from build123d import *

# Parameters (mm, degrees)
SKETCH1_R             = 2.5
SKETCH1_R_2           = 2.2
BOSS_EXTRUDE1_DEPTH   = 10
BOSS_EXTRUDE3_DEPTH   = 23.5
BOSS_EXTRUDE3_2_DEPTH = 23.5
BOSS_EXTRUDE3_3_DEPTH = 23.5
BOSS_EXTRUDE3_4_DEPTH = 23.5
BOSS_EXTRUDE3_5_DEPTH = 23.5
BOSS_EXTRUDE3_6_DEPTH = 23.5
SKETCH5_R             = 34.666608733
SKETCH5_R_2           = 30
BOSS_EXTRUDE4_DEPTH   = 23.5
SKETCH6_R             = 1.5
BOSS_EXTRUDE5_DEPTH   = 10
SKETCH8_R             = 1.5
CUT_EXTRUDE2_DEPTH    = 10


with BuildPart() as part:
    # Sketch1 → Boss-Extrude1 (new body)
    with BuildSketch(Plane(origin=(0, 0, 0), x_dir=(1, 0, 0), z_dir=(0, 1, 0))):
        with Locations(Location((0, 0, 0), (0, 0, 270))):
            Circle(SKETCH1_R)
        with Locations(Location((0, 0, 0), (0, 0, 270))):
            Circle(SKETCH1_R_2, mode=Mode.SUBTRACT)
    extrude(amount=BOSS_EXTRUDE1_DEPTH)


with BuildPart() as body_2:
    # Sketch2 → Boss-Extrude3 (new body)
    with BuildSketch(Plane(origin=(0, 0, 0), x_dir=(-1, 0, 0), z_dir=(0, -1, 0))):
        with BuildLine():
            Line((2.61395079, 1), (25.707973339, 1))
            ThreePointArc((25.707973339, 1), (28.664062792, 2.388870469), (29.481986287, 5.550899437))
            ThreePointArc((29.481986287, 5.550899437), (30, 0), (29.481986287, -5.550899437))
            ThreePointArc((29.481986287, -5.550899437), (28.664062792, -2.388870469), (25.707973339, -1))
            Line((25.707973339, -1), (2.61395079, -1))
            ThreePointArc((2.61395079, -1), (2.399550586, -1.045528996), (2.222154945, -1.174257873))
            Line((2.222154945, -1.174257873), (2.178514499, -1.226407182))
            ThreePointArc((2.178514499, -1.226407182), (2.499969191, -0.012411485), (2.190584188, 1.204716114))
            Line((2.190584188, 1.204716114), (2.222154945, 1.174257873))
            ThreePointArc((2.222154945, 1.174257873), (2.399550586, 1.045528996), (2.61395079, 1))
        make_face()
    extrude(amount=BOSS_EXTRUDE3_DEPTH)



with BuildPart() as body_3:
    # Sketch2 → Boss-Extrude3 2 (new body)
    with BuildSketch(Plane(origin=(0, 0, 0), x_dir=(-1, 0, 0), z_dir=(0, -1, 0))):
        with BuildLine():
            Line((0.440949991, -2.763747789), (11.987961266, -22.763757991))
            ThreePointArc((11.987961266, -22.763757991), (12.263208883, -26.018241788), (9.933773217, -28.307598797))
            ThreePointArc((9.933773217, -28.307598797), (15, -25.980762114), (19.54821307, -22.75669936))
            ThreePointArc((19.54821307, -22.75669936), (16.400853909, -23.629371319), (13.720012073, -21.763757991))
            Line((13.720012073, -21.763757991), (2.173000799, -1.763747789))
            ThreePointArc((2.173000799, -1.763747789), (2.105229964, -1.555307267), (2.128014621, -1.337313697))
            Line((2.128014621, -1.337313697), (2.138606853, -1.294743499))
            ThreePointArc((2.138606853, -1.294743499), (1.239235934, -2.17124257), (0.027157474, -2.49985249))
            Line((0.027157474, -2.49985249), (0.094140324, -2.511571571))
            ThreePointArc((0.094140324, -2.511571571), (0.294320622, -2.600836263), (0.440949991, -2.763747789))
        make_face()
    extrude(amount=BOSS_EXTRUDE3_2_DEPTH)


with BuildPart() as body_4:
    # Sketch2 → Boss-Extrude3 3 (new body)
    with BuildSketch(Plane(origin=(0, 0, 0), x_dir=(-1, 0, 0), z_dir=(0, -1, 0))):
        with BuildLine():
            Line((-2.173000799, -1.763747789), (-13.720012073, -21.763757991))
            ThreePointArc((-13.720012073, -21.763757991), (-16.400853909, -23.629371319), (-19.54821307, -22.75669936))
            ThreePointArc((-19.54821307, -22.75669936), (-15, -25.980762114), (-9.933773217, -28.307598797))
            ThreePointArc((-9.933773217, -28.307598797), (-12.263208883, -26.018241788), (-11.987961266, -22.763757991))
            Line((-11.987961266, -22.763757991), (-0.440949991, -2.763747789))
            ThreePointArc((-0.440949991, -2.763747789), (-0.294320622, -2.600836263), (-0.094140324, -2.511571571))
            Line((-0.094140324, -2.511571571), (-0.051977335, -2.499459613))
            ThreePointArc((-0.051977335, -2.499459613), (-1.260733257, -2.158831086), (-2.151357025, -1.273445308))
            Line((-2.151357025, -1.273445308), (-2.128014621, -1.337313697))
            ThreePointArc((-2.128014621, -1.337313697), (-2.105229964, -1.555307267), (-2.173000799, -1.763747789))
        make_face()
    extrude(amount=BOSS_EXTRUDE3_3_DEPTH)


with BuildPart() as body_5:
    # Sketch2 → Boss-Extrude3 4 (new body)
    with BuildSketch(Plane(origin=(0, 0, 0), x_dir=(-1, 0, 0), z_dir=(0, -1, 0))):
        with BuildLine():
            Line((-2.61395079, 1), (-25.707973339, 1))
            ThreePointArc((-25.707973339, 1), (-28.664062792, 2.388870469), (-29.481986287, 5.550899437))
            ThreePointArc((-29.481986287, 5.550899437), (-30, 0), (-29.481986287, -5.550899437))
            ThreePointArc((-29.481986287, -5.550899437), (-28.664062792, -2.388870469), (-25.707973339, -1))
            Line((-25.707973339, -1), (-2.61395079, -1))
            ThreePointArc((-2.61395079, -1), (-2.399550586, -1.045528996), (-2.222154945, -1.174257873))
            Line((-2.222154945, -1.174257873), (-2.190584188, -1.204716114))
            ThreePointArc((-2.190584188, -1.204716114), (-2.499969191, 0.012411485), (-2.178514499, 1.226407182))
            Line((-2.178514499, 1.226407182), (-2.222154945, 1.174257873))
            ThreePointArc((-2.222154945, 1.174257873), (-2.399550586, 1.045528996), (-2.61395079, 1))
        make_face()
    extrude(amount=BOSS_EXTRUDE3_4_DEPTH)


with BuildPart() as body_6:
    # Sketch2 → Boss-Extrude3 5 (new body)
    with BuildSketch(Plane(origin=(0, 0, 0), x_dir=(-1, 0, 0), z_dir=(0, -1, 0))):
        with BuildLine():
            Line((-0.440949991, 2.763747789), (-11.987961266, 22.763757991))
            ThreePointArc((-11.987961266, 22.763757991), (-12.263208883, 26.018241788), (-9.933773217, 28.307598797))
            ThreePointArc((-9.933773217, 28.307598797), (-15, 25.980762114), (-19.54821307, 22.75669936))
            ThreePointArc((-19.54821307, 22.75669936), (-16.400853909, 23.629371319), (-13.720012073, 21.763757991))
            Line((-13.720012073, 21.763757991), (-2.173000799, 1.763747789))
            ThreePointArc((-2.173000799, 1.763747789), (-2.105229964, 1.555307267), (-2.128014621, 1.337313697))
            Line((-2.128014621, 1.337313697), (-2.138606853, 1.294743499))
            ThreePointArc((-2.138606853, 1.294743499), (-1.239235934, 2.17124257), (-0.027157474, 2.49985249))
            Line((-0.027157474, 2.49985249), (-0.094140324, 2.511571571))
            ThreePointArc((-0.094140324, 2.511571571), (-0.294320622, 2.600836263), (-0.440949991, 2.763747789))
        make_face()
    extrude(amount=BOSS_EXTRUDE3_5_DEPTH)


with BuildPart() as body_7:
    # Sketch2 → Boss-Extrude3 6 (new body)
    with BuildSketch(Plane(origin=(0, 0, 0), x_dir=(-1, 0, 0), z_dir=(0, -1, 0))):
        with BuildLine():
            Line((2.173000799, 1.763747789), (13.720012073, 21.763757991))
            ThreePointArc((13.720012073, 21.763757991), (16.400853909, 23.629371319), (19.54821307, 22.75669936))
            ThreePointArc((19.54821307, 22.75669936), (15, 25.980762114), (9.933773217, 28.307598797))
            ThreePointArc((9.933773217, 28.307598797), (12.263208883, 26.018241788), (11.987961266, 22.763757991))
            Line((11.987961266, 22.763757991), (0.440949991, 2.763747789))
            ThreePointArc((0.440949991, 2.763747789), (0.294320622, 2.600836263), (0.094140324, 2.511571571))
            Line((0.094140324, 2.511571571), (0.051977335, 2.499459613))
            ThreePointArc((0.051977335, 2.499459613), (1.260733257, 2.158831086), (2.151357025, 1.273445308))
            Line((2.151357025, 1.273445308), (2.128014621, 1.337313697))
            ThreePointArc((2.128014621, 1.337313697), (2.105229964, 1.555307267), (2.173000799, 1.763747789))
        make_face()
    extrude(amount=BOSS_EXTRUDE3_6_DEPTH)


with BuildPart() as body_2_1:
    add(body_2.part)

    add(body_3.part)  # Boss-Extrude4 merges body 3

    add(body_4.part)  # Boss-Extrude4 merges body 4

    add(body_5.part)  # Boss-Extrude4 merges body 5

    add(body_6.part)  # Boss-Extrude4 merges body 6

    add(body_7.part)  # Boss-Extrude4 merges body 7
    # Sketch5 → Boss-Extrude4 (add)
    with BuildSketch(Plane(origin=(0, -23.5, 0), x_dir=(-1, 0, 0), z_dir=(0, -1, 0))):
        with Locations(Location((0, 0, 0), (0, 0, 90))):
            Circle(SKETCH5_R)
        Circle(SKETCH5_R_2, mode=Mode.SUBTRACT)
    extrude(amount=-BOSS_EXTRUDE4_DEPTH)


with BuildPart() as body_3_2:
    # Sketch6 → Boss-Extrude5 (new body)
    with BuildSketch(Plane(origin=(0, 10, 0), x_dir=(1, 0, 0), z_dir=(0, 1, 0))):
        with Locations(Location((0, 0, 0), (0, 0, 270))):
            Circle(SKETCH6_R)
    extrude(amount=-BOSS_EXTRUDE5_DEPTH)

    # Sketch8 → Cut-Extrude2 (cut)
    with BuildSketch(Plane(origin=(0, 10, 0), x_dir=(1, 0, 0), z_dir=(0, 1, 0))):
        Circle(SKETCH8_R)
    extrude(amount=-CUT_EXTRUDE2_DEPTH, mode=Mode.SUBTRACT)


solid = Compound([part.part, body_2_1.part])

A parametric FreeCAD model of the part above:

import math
import FreeCAD as App
import Part
import Sketcher
Q = App.Units.Quantity

doc = App.newDocument("Part")
params = doc.addObject("Spreadsheet::Sheet", "Params")
for row, (alias, value) in enumerate([
    ("sketch1_diameter", "5 mm"),
    ("sketch1_diameter2", "4.4 mm"),
    ("pad1_length", "10 mm"),
    ("sketch2_radius", "30 mm"),
    ("sketch2_radius2", "2.5 mm"),
    ("pad2_length", "23.5 mm"),
    ("sketch3_radius", "30 mm"),
    ("sketch3_radius2", "2.5 mm"),
    ("pad3_length", "23.5 mm"),
    ("sketch4_radius", "30 mm"),
    ("sketch4_radius2", "2.5 mm"),
    ("pad4_length", "23.5 mm"),
    ("sketch5_radius", "30 mm"),
    ("sketch5_radius2", "2.5 mm"),
    ("pad5_length", "23.5 mm"),
    ("sketch6_radius", "30 mm"),
    ("sketch6_radius2", "2.5 mm"),
    ("pad6_length", "23.5 mm"),
    ("sketch7_radius", "30 mm"),
    ("sketch7_radius2", "2.5 mm"),
    ("pad7_length", "23.5 mm"),
    ("sketch8_diameter", "60 mm"),
    ("pad8_length", "23.5 mm"),
    ("sketch9_diameter", "3 mm"),
    ("pad9_length", "10 mm"),
    ("sketch10_diameter", "3 mm"),
    ("pocket1_length", "10 mm"),
], start=1):
    params.set(f"A{row}", alias)
    params.set(f"B{row}", "=" + value)
    params.setAlias(f"B{row}", alias)

body = doc.addObject("PartDesign::Body", "Body")

sketch1 = body.newObject("Sketcher::SketchObject", "Sketch")
sketch1.AttachmentSupport = (doc.getObject("XZ_Plane"), [""])
sketch1.MapMode = "FlatFace"
sketch1.addGeometry(Part.Circle(App.Vector(0, 0, 0), App.Vector(0, 0, 1), 2.5), False)
sketch1.addGeometry(Part.Circle(App.Vector(0, 0, 0), App.Vector(0, 0, 1), 2.2), False)
sketch1.addConstraint(Sketcher.Constraint("Coincident", 0, 3, -1, 1))
sketch1.addConstraint(Sketcher.Constraint("Coincident", 1, 3, -1, 1))
sketch1.addConstraint(Sketcher.Constraint("Diameter", 0, Q("5 mm")))
sketch1.addConstraint(Sketcher.Constraint("Diameter", 1, Q("4.4 mm")))
sketch1.setExpression("Constraints[2]", "Params.sketch1_diameter")
sketch1.setExpression("Constraints[3]", "Params.sketch1_diameter2")
pad1 = body.newObject("PartDesign::Pad", "Pad")
pad1.Profile = sketch1
pad1.setExpression("Length", "Params.pad1_length")
pad1.Reversed = True
body2 = doc.addObject("PartDesign::Body", "Body001")

sketch2 = body2.newObject("Sketcher::SketchObject", "Sketch001")
sketch2.AttachmentSupport = (doc.getObject("XZ_Plane001"), [""])
sketch2.MapMode = "FlatFace"
sketch2.addGeometry(Part.LineSegment(App.Vector(-25.707973, -1, 0), App.Vector(-2.613951, -1, 0)), False)
sketch2.addGeometry(Part.ArcOfCircle(Part.Circle(App.Vector(-2.613951, -1.52758, 0), App.Vector(0, 0, 1), 0.52758), math.radians(42.044158), math.radians(90)), False)
sketch2.addGeometry(Part.LineSegment(App.Vector(-2.222155, -1.174258, 0), App.Vector(-2.190584, -1.204716, 0)), False)
sketch2.addGeometry(Part.ArcOfCircle(Part.Circle(App.Vector(0, 0, 0), App.Vector(0, 0, 1), 2.5), math.radians(150.622416), math.radians(208.808681)), False)
sketch2.addGeometry(Part.LineSegment(App.Vector(-2.178514, 1.226407, 0), App.Vector(-2.222155, 1.174258, 0)), False)
sketch2.addGeometry(Part.ArcOfCircle(Part.Circle(App.Vector(-2.613951, 1.52758, 0), App.Vector(0, 0, 1), 0.52758), math.radians(-90), math.radians(-42.044158)), False)
sketch2.addGeometry(Part.LineSegment(App.Vector(-2.613951, 1, 0), App.Vector(-25.707973, 1, 0)), False)
sketch2.addGeometry(Part.ArcOfCircle(Part.Circle(App.Vector(-25.707973, 4.840324, 0), App.Vector(0, 0, 1), 3.840324), math.radians(169.33712), math.radians(270)), False)
sketch2.addGeometry(Part.ArcOfCircle(Part.Circle(App.Vector(0, 0, 0), App.Vector(0, 0, 1), 30), math.radians(169.33712), math.radians(190.66288)), False)
sketch2.addGeometry(Part.ArcOfCircle(Part.Circle(App.Vector(-25.707973, -4.840324, 0), App.Vector(0, 0, 1), 3.840324), math.radians(90), math.radians(190.66288)), False)
sketch2.addConstraint(Sketcher.Constraint("Tangent", 0, 2, 1, 2))
sketch2.addConstraint(Sketcher.Constraint("Coincident", 1, 1, 2, 1))
sketch2.addConstraint(Sketcher.Constraint("Coincident", 2, 2, 3, 2))
sketch2.addConstraint(Sketcher.Constraint("Coincident", 3, 1, 4, 1))
sketch2.addConstraint(Sketcher.Constraint("Coincident", 4, 2, 5, 2))
sketch2.addConstraint(Sketcher.Constraint("Tangent", 5, 1, 6, 1))
sketch2.addConstraint(Sketcher.Constraint("Tangent", 6, 2, 7, 2))
sketch2.addConstraint(Sketcher.Constraint("Tangent", 7, 1, 8, 1))
sketch2.addConstraint(Sketcher.Constraint("Tangent", 8, 2, 9, 2))
sketch2.addConstraint(Sketcher.Constraint("Tangent", 9, 1, 0, 1))
sketch2.addConstraint(Sketcher.Constraint("Horizontal", 0))
sketch2.addConstraint(Sketcher.Constraint("Horizontal", 6))
sketch2.addConstraint(Sketcher.Constraint("Coincident", 3, 3, -1, 1))
sketch2.addConstraint(Sketcher.Constraint("Coincident", 8, 3, -1, 1))
sketch2.addConstraint(Sketcher.Constraint("Equal", 1, 5))
sketch2.addConstraint(Sketcher.Constraint("Equal", 7, 9))
sketch2.addConstraint(Sketcher.Constraint("Symmetric", 1, 3, 5, 3, -1))
sketch2.addConstraint(Sketcher.Constraint("Vertical", 1, 1, 4, 2))
sketch2.addConstraint(Sketcher.Constraint("Radius", 8, Q("30 mm")))
sketch2.addConstraint(Sketcher.Constraint("Radius", 3, Q("2.5 mm")))
sketch2.addConstraint(Sketcher.Constraint("DistanceY", 0, 2, -1, 1, Q("1 mm")))
sketch2.addConstraint(Sketcher.Constraint("Radius", 1, Q("0.52758 mm")))
sketch2.addConstraint(Sketcher.Constraint("Distance", 4, Q("0.068 mm")))
sketch2.addConstraint(Sketcher.Constraint("Radius", 7, Q("3.840324 mm")))
sketch2.addConstraint(Sketcher.Constraint("Distance", 2, Q("0.043868 mm")))
sketch2.addConstraint(Sketcher.Constraint("DistanceX", 0, 1, 0, 2, Q("23.094023 mm")))
sketch2.addConstraint(Sketcher.Constraint("DistanceY", 1, 3, 1, 1, Q("0.353322 mm")))
sketch2.setExpression("Constraints[18]", "Params.sketch2_radius")
sketch2.setExpression("Constraints[19]", "Params.sketch2_radius2")
pad2 = body2.newObject("PartDesign::Pad", "Pad001")
pad2.Profile = sketch2
pad2.setExpression("Length", "Params.pad2_length")
body3 = doc.addObject("PartDesign::Body", "Body002")

sketch3 = body3.newObject("Sketcher::SketchObject", "Sketch002")
sketch3.AttachmentSupport = (doc.getObject("XZ_Plane002"), [""])
sketch3.MapMode = "FlatFace"
sketch3.addGeometry(Part.LineSegment(App.Vector(-0.44095, 2.763748, 0), App.Vector(-11.987961, 22.763758, 0)), False)
sketch3.addGeometry(Part.ArcOfCircle(Part.Circle(App.Vector(-8.662143, 24.68392, 0), App.Vector(0, 0, 1), 3.840324), math.radians(109.33712), math.radians(210)), False)
sketch3.addGeometry(Part.ArcOfCircle(Part.Circle(App.Vector(0, 0, 0), App.Vector(0, 0, 1), 30), math.radians(109.33712), math.radians(130.66288)), False)
sketch3.addGeometry(Part.ArcOfCircle(Part.Circle(App.Vector(-17.04583, 19.843596, 0), App.Vector(0, 0, 1), 3.840324), math.radians(30), math.radians(130.66288)), False)
sketch3.addGeometry(Part.LineSegment(App.Vector(-13.720012, 21.763758, 0), App.Vector(-2.173001, 1.763748, 0)), False)
sketch3.addGeometry(Part.ArcOfCircle(Part.Circle(App.Vector(-2.629898, 1.499958, 0), App.Vector(0, 0, 1), 0.52758), math.radians(-17.955842), math.radians(30)), False)
sketch3.addGeometry(Part.LineSegment(App.Vector(-2.128015, 1.337314, 0), App.Vector(-2.138607, 1.294743, 0)), False)
sketch3.addGeometry(Part.ArcOfCircle(Part.Circle(App.Vector(0, 0, 0), App.Vector(0, 0, 1), 2.5), math.radians(90.622416), math.radians(148.808681)), False)
sketch3.addGeometry(Part.LineSegment(App.Vector(-0.027157, 2.499852, 0), App.Vector(-0.09414, 2.511572, 0)), False)
sketch3.addGeometry(Part.ArcOfCircle(Part.Circle(App.Vector(0.015947, 3.027538, 0), App.Vector(0, 0, 1), 0.52758), math.radians(-150), math.radians(-102.044157)), False)
sketch3.addConstraint(Sketcher.Constraint("Tangent", 0, 2, 1, 2))
sketch3.addConstraint(Sketcher.Constraint("Tangent", 1, 1, 2, 1))
sketch3.addConstraint(Sketcher.Constraint("Tangent", 2, 2, 3, 2))
sketch3.addConstraint(Sketcher.Constraint("Tangent", 3, 1, 4, 1))
sketch3.addConstraint(Sketcher.Constraint("Tangent", 4, 2, 5, 2))
sketch3.addConstraint(Sketcher.Constraint("Coincident", 5, 1, 6, 1))
sketch3.addConstraint(Sketcher.Constraint("Coincident", 6, 2, 7, 2))
sketch3.addConstraint(Sketcher.Constraint("Coincident", 7, 1, 8, 1))
sketch3.addConstraint(Sketcher.Constraint("Coincident", 8, 2, 9, 2))
sketch3.addConstraint(Sketcher.Constraint("Tangent", 9, 1, 0, 1))
sketch3.addConstraint(Sketcher.Constraint("Coincident", 2, 3, -1, 1))
sketch3.addConstraint(Sketcher.Constraint("Coincident", 7, 3, -1, 1))
sketch3.addConstraint(Sketcher.Constraint("Equal", 1, 3))
sketch3.addConstraint(Sketcher.Constraint("Equal", 5, 9))
sketch3.addConstraint(Sketcher.Constraint("Parallel", 0, 4))
sketch3.addConstraint(Sketcher.Constraint("Equal", 0, 4))
sketch3.addConstraint(Sketcher.Constraint("Radius", 2, Q("30 mm")))
sketch3.addConstraint(Sketcher.Constraint("Radius", 7, Q("2.5 mm")))
sketch3.addConstraint(Sketcher.Constraint("Angle", 0, Q("120 deg")))
sketch3.addConstraint(Sketcher.Constraint("DistanceY", 3, 1, 0, 2, Q("1 mm")))
sketch3.addConstraint(Sketcher.Constraint("Radius", 5, Q("0.52758 mm")))
sketch3.addConstraint(Sketcher.Constraint("Distance", 8, Q("0.068 mm")))
sketch3.addConstraint(Sketcher.Constraint("DistanceX", 4, 2, -1, 1, Q("2.173001 mm")))
sketch3.addConstraint(Sketcher.Constraint("Radius", 1, Q("3.840324 mm")))
sketch3.addConstraint(Sketcher.Constraint("DistanceY", -1, 1, 1, 1, Q("28.307599 mm")))
sketch3.addConstraint(Sketcher.Constraint("Distance", 6, Q("0.043868 mm")))
sketch3.addConstraint(Sketcher.Constraint("DistanceX", 8, 2, -1, 1, Q("0.09414 mm")))
sketch3.addConstraint(Sketcher.Constraint("DistanceX", 5, 1, 9, 3, Q("2.143962 mm")))
sketch3.setExpression("Constraints[16]", "Params.sketch3_radius")
sketch3.setExpression("Constraints[17]", "Params.sketch3_radius2")
pad3 = body3.newObject("PartDesign::Pad", "Pad002")
pad3.Profile = sketch3
pad3.setExpression("Length", "Params.pad3_length")
body4 = doc.addObject("PartDesign::Body", "Body003")

sketch4 = body4.newObject("Sketcher::SketchObject", "Sketch003")
sketch4.AttachmentSupport = (doc.getObject("XZ_Plane003"), [""])
sketch4.MapMode = "FlatFace"
sketch4.addGeometry(Part.LineSegment(App.Vector(2.173001, 1.763748, 0), App.Vector(13.720012, 21.763758, 0)), False)
sketch4.addGeometry(Part.ArcOfCircle(Part.Circle(App.Vector(17.04583, 19.843596, 0), App.Vector(0, 0, 1), 3.840324), math.radians(49.33712), math.radians(150)), False)
sketch4.addGeometry(Part.ArcOfCircle(Part.Circle(App.Vector(0, 0, 0), App.Vector(0, 0, 1), 30), math.radians(49.33712), math.radians(70.66288)), False)
sketch4.addGeometry(Part.ArcOfCircle(Part.Circle(App.Vector(8.662143, 24.68392, 0), App.Vector(0, 0, 1), 3.840324), math.radians(-30), math.radians(70.66288)), False)
sketch4.addGeometry(Part.LineSegment(App.Vector(11.987961, 22.763758, 0), App.Vector(0.44095, 2.763748, 0)), False)
sketch4.addGeometry(Part.ArcOfCircle(Part.Circle(App.Vector(-0.015947, 3.027538, 0), App.Vector(0, 0, 1), 0.52758), math.radians(-77.955843), math.radians(-30)), False)
sketch4.addGeometry(Part.LineSegment(App.Vector(0.09414, 2.511572, 0), App.Vector(0.051977, 2.49946, 0)), False)
sketch4.addGeometry(Part.ArcOfCircle(Part.Circle(App.Vector(0, 0, 0), App.Vector(0, 0, 1), 2.5), math.radians(30.622416), math.radians(88.808681)), False)
sketch4.addGeometry(Part.LineSegment(App.Vector(2.151357, 1.273445, 0), App.Vector(2.128015, 1.337314, 0)), False)
sketch4.addGeometry(Part.ArcOfCircle(Part.Circle(App.Vector(2.629898, 1.499958, 0), App.Vector(0, 0, 1), 0.52758), math.radians(150), math.radians(197.955842)), False)
sketch4.addConstraint(Sketcher.Constraint("Tangent", 0, 2, 1, 2))
sketch4.addConstraint(Sketcher.Constraint("Tangent", 1, 1, 2, 1))
sketch4.addConstraint(Sketcher.Constraint("Tangent", 2, 2, 3, 2))
sketch4.addConstraint(Sketcher.Constraint("Tangent", 3, 1, 4, 1))
sketch4.addConstraint(Sketcher.Constraint("Tangent", 4, 2, 5, 2))
sketch4.addConstraint(Sketcher.Constraint("Coincident", 5, 1, 6, 1))
sketch4.addConstraint(Sketcher.Constraint("Coincident", 6, 2, 7, 2))
sketch4.addConstraint(Sketcher.Constraint("Coincident", 7, 1, 8, 1))
sketch4.addConstraint(Sketcher.Constraint("Coincident", 8, 2, 9, 2))
sketch4.addConstraint(Sketcher.Constraint("Tangent", 9, 1, 0, 1))
sketch4.addConstraint(Sketcher.Constraint("Coincident", 2, 3, -1, 1))
sketch4.addConstraint(Sketcher.Constraint("Coincident", 7, 3, -1, 1))
sketch4.addConstraint(Sketcher.Constraint("Equal", 1, 3))
sketch4.addConstraint(Sketcher.Constraint("Equal", 5, 9))
sketch4.addConstraint(Sketcher.Constraint("Parallel", 0, 4))
sketch4.addConstraint(Sketcher.Constraint("Equal", 0, 4))
sketch4.addConstraint(Sketcher.Constraint("Radius", 2, Q("30 mm")))
sketch4.addConstraint(Sketcher.Constraint("Radius", 7, Q("2.5 mm")))
sketch4.addConstraint(Sketcher.Constraint("Angle", 0, Q("60 deg")))
sketch4.addConstraint(Sketcher.Constraint("DistanceY", 0, 2, 3, 1, Q("1 mm")))
sketch4.addConstraint(Sketcher.Constraint("Radius", 5, Q("0.52758 mm")))
sketch4.addConstraint(Sketcher.Constraint("Distance", 8, Q("0.068 mm")))
sketch4.addConstraint(Sketcher.Constraint("DistanceX", -1, 1, 9, 1, Q("2.173001 mm")))
sketch4.addConstraint(Sketcher.Constraint("Radius", 1, Q("3.840324 mm")))
sketch4.addConstraint(Sketcher.Constraint("DistanceY", -1, 1, 1, 1, Q("22.756699 mm")))
sketch4.addConstraint(Sketcher.Constraint("Distance", 6, Q("0.043868 mm")))
sketch4.addConstraint(Sketcher.Constraint("DistanceX", -1, 1, 5, 1, Q("0.09414 mm")))
sketch4.addConstraint(Sketcher.Constraint("DistanceX", 7, 1, 9, 3, Q("0.478541 mm")))
sketch4.setExpression("Constraints[16]", "Params.sketch4_radius")
sketch4.setExpression("Constraints[17]", "Params.sketch4_radius2")
pad4 = body4.newObject("PartDesign::Pad", "Pad003")
pad4.Profile = sketch4
pad4.setExpression("Length", "Params.pad4_length")
body5 = doc.addObject("PartDesign::Body", "Body004")

sketch5 = body5.newObject("Sketcher::SketchObject", "Sketch004")
sketch5.AttachmentSupport = (doc.getObject("XZ_Plane004"), [""])
sketch5.MapMode = "FlatFace"
sketch5.addGeometry(Part.LineSegment(App.Vector(2.613951, -1, 0), App.Vector(25.707973, -1, 0)), False)
sketch5.addGeometry(Part.ArcOfCircle(Part.Circle(App.Vector(25.707973, -4.840324, 0), App.Vector(0, 0, 1), 3.840324), math.radians(-10.66288), math.radians(90)), False)
sketch5.addGeometry(Part.ArcOfCircle(Part.Circle(App.Vector(0, 0, 0), App.Vector(0, 0, 1), 30), math.radians(-10.66288), math.radians(10.66288)), False)
sketch5.addGeometry(Part.ArcOfCircle(Part.Circle(App.Vector(25.707973, 4.840324, 0), App.Vector(0, 0, 1), 3.840324), math.radians(-90), math.radians(10.66288)), False)
sketch5.addGeometry(Part.LineSegment(App.Vector(25.707973, 1, 0), App.Vector(2.613951, 1, 0)), False)
sketch5.addGeometry(Part.ArcOfCircle(Part.Circle(App.Vector(2.613951, 1.52758, 0), App.Vector(0, 0, 1), 0.52758), math.radians(-137.955842), math.radians(-90)), False)
sketch5.addGeometry(Part.LineSegment(App.Vector(2.222155, 1.174258, 0), App.Vector(2.190584, 1.204716, 0)), False)
sketch5.addGeometry(Part.ArcOfCircle(Part.Circle(App.Vector(0, 0, 0), App.Vector(0, 0, 1), 2.5), math.radians(-29.377584), math.radians(28.808681)), False)
sketch5.addGeometry(Part.LineSegment(App.Vector(2.178514, -1.226407, 0), App.Vector(2.222155, -1.174258, 0)), False)
sketch5.addGeometry(Part.ArcOfCircle(Part.Circle(App.Vector(2.613951, -1.52758, 0), App.Vector(0, 0, 1), 0.52758), math.radians(90), math.radians(137.955842)), False)
sketch5.addConstraint(Sketcher.Constraint("Tangent", 0, 2, 1, 2))
sketch5.addConstraint(Sketcher.Constraint("Tangent", 1, 1, 2, 1))
sketch5.addConstraint(Sketcher.Constraint("Tangent", 2, 2, 3, 2))
sketch5.addConstraint(Sketcher.Constraint("Tangent", 3, 1, 4, 1))
sketch5.addConstraint(Sketcher.Constraint("Tangent", 4, 2, 5, 2))
sketch5.addConstraint(Sketcher.Constraint("Coincident", 5, 1, 6, 1))
sketch5.addConstraint(Sketcher.Constraint("Coincident", 6, 2, 7, 2))
sketch5.addConstraint(Sketcher.Constraint("Coincident", 7, 1, 8, 1))
sketch5.addConstraint(Sketcher.Constraint("Coincident", 8, 2, 9, 2))
sketch5.addConstraint(Sketcher.Constraint("Tangent", 9, 1, 0, 1))
sketch5.addConstraint(Sketcher.Constraint("Horizontal", 0))
sketch5.addConstraint(Sketcher.Constraint("Horizontal", 4))
sketch5.addConstraint(Sketcher.Constraint("Coincident", 2, 3, -1, 1))
sketch5.addConstraint(Sketcher.Constraint("Coincident", 7, 3, -1, 1))
sketch5.addConstraint(Sketcher.Constraint("Equal", 1, 3))
sketch5.addConstraint(Sketcher.Constraint("Equal", 5, 9))
sketch5.addConstraint(Sketcher.Constraint("Symmetric", 5, 3, 9, 3, -1))
sketch5.addConstraint(Sketcher.Constraint("Vertical", 5, 1, 8, 2))
sketch5.addConstraint(Sketcher.Constraint("Radius", 2, Q("30 mm")))
sketch5.addConstraint(Sketcher.Constraint("Radius", 7, Q("2.5 mm")))
sketch5.addConstraint(Sketcher.Constraint("DistanceY", 0, 2, -1, 1, Q("1 mm")))
sketch5.addConstraint(Sketcher.Constraint("Radius", 5, Q("0.52758 mm")))
sketch5.addConstraint(Sketcher.Constraint("Distance", 8, Q("0.068 mm")))
sketch5.addConstraint(Sketcher.Constraint("Radius", 1, Q("3.840324 mm")))
sketch5.addConstraint(Sketcher.Constraint("Distance", 6, Q("0.043868 mm")))
sketch5.addConstraint(Sketcher.Constraint("DistanceX", 0, 1, 0, 2, Q("23.094023 mm")))
sketch5.addConstraint(Sketcher.Constraint("DistanceY", 5, 1, 5, 3, Q("0.353322 mm")))
sketch5.setExpression("Constraints[18]", "Params.sketch5_radius")
sketch5.setExpression("Constraints[19]", "Params.sketch5_radius2")
pad5 = body5.newObject("PartDesign::Pad", "Pad004")
pad5.Profile = sketch5
pad5.setExpression("Length", "Params.pad5_length")
body6 = doc.addObject("PartDesign::Body", "Body005")

sketch6 = body6.newObject("Sketcher::SketchObject", "Sketch005")
sketch6.AttachmentSupport = (doc.getObject("XZ_Plane005"), [""])
sketch6.MapMode = "FlatFace"
sketch6.addGeometry(Part.LineSegment(App.Vector(0.44095, -2.763748, 0), App.Vector(11.987961, -22.763758, 0)), False)
sketch6.addGeometry(Part.ArcOfCircle(Part.Circle(App.Vector(8.662143, -24.68392, 0), App.Vector(0, 0, 1), 3.840324), math.radians(-70.66288), math.radians(30)), False)
sketch6.addGeometry(Part.ArcOfCircle(Part.Circle(App.Vector(0, 0, 0), App.Vector(0, 0, 1), 30), math.radians(-70.66288), math.radians(-49.33712)), False)
sketch6.addGeometry(Part.ArcOfCircle(Part.Circle(App.Vector(17.04583, -19.843596, 0), App.Vector(0, 0, 1), 3.840324), math.radians(-150), math.radians(-49.33712)), False)
sketch6.addGeometry(Part.LineSegment(App.Vector(13.720012, -21.763758, 0), App.Vector(2.173001, -1.763748, 0)), False)
sketch6.addGeometry(Part.ArcOfCircle(Part.Circle(App.Vector(2.629898, -1.499958, 0), App.Vector(0, 0, 1), 0.52758), math.radians(162.044158), math.radians(210)), False)
sketch6.addGeometry(Part.LineSegment(App.Vector(2.128015, -1.337314, 0), App.Vector(2.138607, -1.294743, 0)), False)
sketch6.addGeometry(Part.ArcOfCircle(Part.Circle(App.Vector(0, 0, 0), App.Vector(0, 0, 1), 2.5), math.radians(-89.377584), math.radians(-31.191319)), False)
sketch6.addGeometry(Part.LineSegment(App.Vector(0.027157, -2.499852, 0), App.Vector(0.09414, -2.511572, 0)), False)
sketch6.addGeometry(Part.ArcOfCircle(Part.Circle(App.Vector(-0.015947, -3.027538, 0), App.Vector(0, 0, 1), 0.52758), math.radians(30), math.radians(77.955843)), False)
sketch6.addConstraint(Sketcher.Constraint("Tangent", 0, 2, 1, 2))
sketch6.addConstraint(Sketcher.Constraint("Tangent", 1, 1, 2, 1))
sketch6.addConstraint(Sketcher.Constraint("Tangent", 2, 2, 3, 2))
sketch6.addConstraint(Sketcher.Constraint("Tangent", 3, 1, 4, 1))
sketch6.addConstraint(Sketcher.Constraint("Tangent", 4, 2, 5, 2))
sketch6.addConstraint(Sketcher.Constraint("Coincident", 5, 1, 6, 1))
sketch6.addConstraint(Sketcher.Constraint("Coincident", 6, 2, 7, 2))
sketch6.addConstraint(Sketcher.Constraint("Coincident", 7, 1, 8, 1))
sketch6.addConstraint(Sketcher.Constraint("Coincident", 8, 2, 9, 2))
sketch6.addConstraint(Sketcher.Constraint("Tangent", 9, 1, 0, 1))
sketch6.addConstraint(Sketcher.Constraint("Coincident", 2, 3, -1, 1))
sketch6.addConstraint(Sketcher.Constraint("Coincident", 7, 3, -1, 1))
sketch6.addConstraint(Sketcher.Constraint("Equal", 1, 3))
sketch6.addConstraint(Sketcher.Constraint("Equal", 5, 9))
sketch6.addConstraint(Sketcher.Constraint("Parallel", 0, 4))
sketch6.addConstraint(Sketcher.Constraint("Equal", 0, 4))
sketch6.addConstraint(Sketcher.Constraint("Radius", 2, Q("30 mm")))
sketch6.addConstraint(Sketcher.Constraint("Radius", 7, Q("2.5 mm")))
sketch6.addConstraint(Sketcher.Constraint("Angle", 0, Q("-60 deg")))
sketch6.addConstraint(Sketcher.Constraint("DistanceY", 0, 2, 3, 1, Q("1 mm")))
sketch6.addConstraint(Sketcher.Constraint("Radius", 5, Q("0.52758 mm")))
sketch6.addConstraint(Sketcher.Constraint("Distance", 8, Q("0.068 mm")))
sketch6.addConstraint(Sketcher.Constraint("DistanceX", -1, 1, 4, 2, Q("2.173001 mm")))
sketch6.addConstraint(Sketcher.Constraint("Radius", 1, Q("3.840324 mm")))
sketch6.addConstraint(Sketcher.Constraint("DistanceY", 1, 1, -1, 1, Q("28.307599 mm")))
sketch6.addConstraint(Sketcher.Constraint("Distance", 6, Q("0.043868 mm")))
sketch6.addConstraint(Sketcher.Constraint("DistanceX", -1, 1, 8, 2, Q("0.09414 mm")))
sketch6.addConstraint(Sketcher.Constraint("DistanceX", 9, 3, 5, 1, Q("2.143962 mm")))
sketch6.setExpression("Constraints[16]", "Params.sketch6_radius")
sketch6.setExpression("Constraints[17]", "Params.sketch6_radius2")
pad6 = body6.newObject("PartDesign::Pad", "Pad005")
pad6.Profile = sketch6
pad6.setExpression("Length", "Params.pad6_length")
body7 = doc.addObject("PartDesign::Body", "Body006")

sketch7 = body7.newObject("Sketcher::SketchObject", "Sketch006")
sketch7.AttachmentSupport = (doc.getObject("XZ_Plane006"), [""])
sketch7.MapMode = "FlatFace"
sketch7.addGeometry(Part.LineSegment(App.Vector(-2.173001, -1.763748, 0), App.Vector(-13.720012, -21.763758, 0)), False)
sketch7.addGeometry(Part.ArcOfCircle(Part.Circle(App.Vector(-17.04583, -19.843596, 0), App.Vector(0, 0, 1), 3.840324), math.radians(-130.66288), math.radians(-30)), False)
sketch7.addGeometry(Part.ArcOfCircle(Part.Circle(App.Vector(0, 0, 0), App.Vector(0, 0, 1), 30), math.radians(-130.66288), math.radians(-109.33712)), False)
sketch7.addGeometry(Part.ArcOfCircle(Part.Circle(App.Vector(-8.662143, -24.68392, 0), App.Vector(0, 0, 1), 3.840324), math.radians(150), math.radians(250.66288)), False)
sketch7.addGeometry(Part.LineSegment(App.Vector(-11.987961, -22.763758, 0), App.Vector(-0.44095, -2.763748, 0)), False)
sketch7.addGeometry(Part.ArcOfCircle(Part.Circle(App.Vector(0.015947, -3.027538, 0), App.Vector(0, 0, 1), 0.52758), math.radians(102.044157), math.radians(150)), False)
sketch7.addGeometry(Part.LineSegment(App.Vector(-0.09414, -2.511572, 0), App.Vector(-0.051977, -2.49946, 0)), False)
sketch7.addGeometry(Part.ArcOfCircle(Part.Circle(App.Vector(0, 0, 0), App.Vector(0, 0, 1), 2.5), math.radians(-149.377584), math.radians(-91.191319)), False)
sketch7.addGeometry(Part.LineSegment(App.Vector(-2.151357, -1.273445, 0), App.Vector(-2.128015, -1.337314, 0)), False)
sketch7.addGeometry(Part.ArcOfCircle(Part.Circle(App.Vector(-2.629898, -1.499958, 0), App.Vector(0, 0, 1), 0.52758), math.radians(-30), math.radians(17.955842)), False)
sketch7.addConstraint(Sketcher.Constraint("Tangent", 0, 2, 1, 2))
sketch7.addConstraint(Sketcher.Constraint("Tangent", 1, 1, 2, 1))
sketch7.addConstraint(Sketcher.Constraint("Tangent", 2, 2, 3, 2))
sketch7.addConstraint(Sketcher.Constraint("Tangent", 3, 1, 4, 1))
sketch7.addConstraint(Sketcher.Constraint("Tangent", 4, 2, 5, 2))
sketch7.addConstraint(Sketcher.Constraint("Coincident", 5, 1, 6, 1))
sketch7.addConstraint(Sketcher.Constraint("Coincident", 6, 2, 7, 2))
sketch7.addConstraint(Sketcher.Constraint("Coincident", 7, 1, 8, 1))
sketch7.addConstraint(Sketcher.Constraint("Coincident", 8, 2, 9, 2))
sketch7.addConstraint(Sketcher.Constraint("Tangent", 9, 1, 0, 1))
sketch7.addConstraint(Sketcher.Constraint("Coincident", 2, 3, -1, 1))
sketch7.addConstraint(Sketcher.Constraint("Coincident", 7, 3, -1, 1))
sketch7.addConstraint(Sketcher.Constraint("Equal", 1, 3))
sketch7.addConstraint(Sketcher.Constraint("Equal", 5, 9))
sketch7.addConstraint(Sketcher.Constraint("Parallel", 0, 4))
sketch7.addConstraint(Sketcher.Constraint("Equal", 0, 4))
sketch7.addConstraint(Sketcher.Constraint("Radius", 2, Q("30 mm")))
sketch7.addConstraint(Sketcher.Constraint("Radius", 7, Q("2.5 mm")))
sketch7.addConstraint(Sketcher.Constraint("Angle", 0, Q("-120 deg")))
sketch7.addConstraint(Sketcher.Constraint("DistanceY", 3, 1, 0, 2, Q("1 mm")))
sketch7.addConstraint(Sketcher.Constraint("Radius", 5, Q("0.52758 mm")))
sketch7.addConstraint(Sketcher.Constraint("Distance", 8, Q("0.068 mm")))
sketch7.addConstraint(Sketcher.Constraint("DistanceX", 9, 1, -1, 1, Q("2.173001 mm")))
sketch7.addConstraint(Sketcher.Constraint("Radius", 1, Q("3.840324 mm")))
sketch7.addConstraint(Sketcher.Constraint("DistanceY", 1, 1, -1, 1, Q("22.756699 mm")))
sketch7.addConstraint(Sketcher.Constraint("Distance", 6, Q("0.043868 mm")))
sketch7.addConstraint(Sketcher.Constraint("DistanceX", 5, 1, -1, 1, Q("0.09414 mm")))
sketch7.addConstraint(Sketcher.Constraint("DistanceX", 9, 3, 7, 1, Q("0.478541 mm")))
sketch7.setExpression("Constraints[16]", "Params.sketch7_radius")
sketch7.setExpression("Constraints[17]", "Params.sketch7_radius2")
pad7 = body7.newObject("PartDesign::Pad", "Pad006")
pad7.Profile = sketch7
pad7.setExpression("Length", "Params.pad7_length")
body2.AllowCompound = True
doc.recompute()

boolean = body2.newObject("PartDesign::Boolean", "Boolean")
boolean.Type = "Fuse"
boolean.addObjects([body3])
doc.recompute()

boolean2 = body2.newObject("PartDesign::Boolean", "Boolean001")
boolean2.Type = "Fuse"
boolean2.addObjects([body4])
doc.recompute()

boolean3 = body2.newObject("PartDesign::Boolean", "Boolean002")
boolean3.Type = "Fuse"
boolean3.addObjects([body5])
doc.recompute()

boolean4 = body2.newObject("PartDesign::Boolean", "Boolean003")
boolean4.Type = "Fuse"
boolean4.addObjects([body6])
doc.recompute()

boolean5 = body2.newObject("PartDesign::Boolean", "Boolean004")
boolean5.Type = "Fuse"
boolean5.addObjects([body7])

sketch8 = body2.newObject("Sketcher::SketchObject", "Sketch007")
sketch8.AttachmentSupport = (doc.getObject("XZ_Plane001"), [""])
sketch8.MapMode = "FlatFace"
sketch8.AttachmentOffset = App.Placement(App.Vector(0, 0, 23.5), App.Rotation())
sketch8.addGeometry(Part.Circle(App.Vector(0, 0, 0), App.Vector(0, 0, 1), 34.666609), False)
sketch8.addGeometry(Part.Circle(App.Vector(0, 0, 0), App.Vector(0, 0, 1), 30), False)
sketch8.addConstraint(Sketcher.Constraint("Coincident", 0, 3, -1, 1))
sketch8.addConstraint(Sketcher.Constraint("Coincident", 1, 3, -1, 1))
sketch8.addConstraint(Sketcher.Constraint("Diameter", 1, Q("60 mm")))
sketch8.addConstraint(Sketcher.Constraint("Diameter", 0, Q("69.333217 mm")))
sketch8.setExpression("Constraints[2]", "Params.sketch8_diameter")
pad8 = body2.newObject("PartDesign::Pad", "Pad007")
pad8.Profile = sketch8
pad8.setExpression("Length", "Params.pad8_length")
pad8.Reversed = True
body8 = doc.addObject("PartDesign::Body", "Body007")

sketch9 = body8.newObject("Sketcher::SketchObject", "Sketch008")
sketch9.AttachmentSupport = (doc.getObject("XZ_Plane007"), [""])
sketch9.MapMode = "FlatFace"
sketch9.AttachmentOffset = App.Placement(App.Vector(0, 0, -10), App.Rotation())
sketch9.addGeometry(Part.Circle(App.Vector(0, 0, 0), App.Vector(0, 0, 1), 1.5), False)
sketch9.addConstraint(Sketcher.Constraint("Coincident", 0, 3, -1, 1))
sketch9.addConstraint(Sketcher.Constraint("Diameter", 0, Q("3 mm")))
sketch9.setExpression("Constraints[1]", "Params.sketch9_diameter")
pad9 = body8.newObject("PartDesign::Pad", "Pad008")
pad9.Profile = sketch9
pad9.setExpression("Length", "Params.pad9_length")

sketch10 = body8.newObject("Sketcher::SketchObject", "Sketch009")
sketch10.AttachmentSupport = (doc.getObject("XZ_Plane007"), [""])
sketch10.MapMode = "FlatFace"
sketch10.AttachmentOffset = App.Placement(App.Vector(0, 0, -10), App.Rotation())
sketch10.addGeometry(Part.Circle(App.Vector(0, 0, 0), App.Vector(0, 0, 1), 1.5), False)
sketch10.addConstraint(Sketcher.Constraint("Coincident", 0, 3, -1, 1))
sketch10.addConstraint(Sketcher.Constraint("Diameter", 0, Q("3 mm")))
sketch10.setExpression("Constraints[1]", "Params.sketch10_diameter")
pocket1 = body8.newObject("PartDesign::Pocket", "Pocket")
pocket1.Profile = sketch10
pocket1.setExpression("Length", "Params.pocket1_length")
pocket1.Reversed = True

doc.recompute()
